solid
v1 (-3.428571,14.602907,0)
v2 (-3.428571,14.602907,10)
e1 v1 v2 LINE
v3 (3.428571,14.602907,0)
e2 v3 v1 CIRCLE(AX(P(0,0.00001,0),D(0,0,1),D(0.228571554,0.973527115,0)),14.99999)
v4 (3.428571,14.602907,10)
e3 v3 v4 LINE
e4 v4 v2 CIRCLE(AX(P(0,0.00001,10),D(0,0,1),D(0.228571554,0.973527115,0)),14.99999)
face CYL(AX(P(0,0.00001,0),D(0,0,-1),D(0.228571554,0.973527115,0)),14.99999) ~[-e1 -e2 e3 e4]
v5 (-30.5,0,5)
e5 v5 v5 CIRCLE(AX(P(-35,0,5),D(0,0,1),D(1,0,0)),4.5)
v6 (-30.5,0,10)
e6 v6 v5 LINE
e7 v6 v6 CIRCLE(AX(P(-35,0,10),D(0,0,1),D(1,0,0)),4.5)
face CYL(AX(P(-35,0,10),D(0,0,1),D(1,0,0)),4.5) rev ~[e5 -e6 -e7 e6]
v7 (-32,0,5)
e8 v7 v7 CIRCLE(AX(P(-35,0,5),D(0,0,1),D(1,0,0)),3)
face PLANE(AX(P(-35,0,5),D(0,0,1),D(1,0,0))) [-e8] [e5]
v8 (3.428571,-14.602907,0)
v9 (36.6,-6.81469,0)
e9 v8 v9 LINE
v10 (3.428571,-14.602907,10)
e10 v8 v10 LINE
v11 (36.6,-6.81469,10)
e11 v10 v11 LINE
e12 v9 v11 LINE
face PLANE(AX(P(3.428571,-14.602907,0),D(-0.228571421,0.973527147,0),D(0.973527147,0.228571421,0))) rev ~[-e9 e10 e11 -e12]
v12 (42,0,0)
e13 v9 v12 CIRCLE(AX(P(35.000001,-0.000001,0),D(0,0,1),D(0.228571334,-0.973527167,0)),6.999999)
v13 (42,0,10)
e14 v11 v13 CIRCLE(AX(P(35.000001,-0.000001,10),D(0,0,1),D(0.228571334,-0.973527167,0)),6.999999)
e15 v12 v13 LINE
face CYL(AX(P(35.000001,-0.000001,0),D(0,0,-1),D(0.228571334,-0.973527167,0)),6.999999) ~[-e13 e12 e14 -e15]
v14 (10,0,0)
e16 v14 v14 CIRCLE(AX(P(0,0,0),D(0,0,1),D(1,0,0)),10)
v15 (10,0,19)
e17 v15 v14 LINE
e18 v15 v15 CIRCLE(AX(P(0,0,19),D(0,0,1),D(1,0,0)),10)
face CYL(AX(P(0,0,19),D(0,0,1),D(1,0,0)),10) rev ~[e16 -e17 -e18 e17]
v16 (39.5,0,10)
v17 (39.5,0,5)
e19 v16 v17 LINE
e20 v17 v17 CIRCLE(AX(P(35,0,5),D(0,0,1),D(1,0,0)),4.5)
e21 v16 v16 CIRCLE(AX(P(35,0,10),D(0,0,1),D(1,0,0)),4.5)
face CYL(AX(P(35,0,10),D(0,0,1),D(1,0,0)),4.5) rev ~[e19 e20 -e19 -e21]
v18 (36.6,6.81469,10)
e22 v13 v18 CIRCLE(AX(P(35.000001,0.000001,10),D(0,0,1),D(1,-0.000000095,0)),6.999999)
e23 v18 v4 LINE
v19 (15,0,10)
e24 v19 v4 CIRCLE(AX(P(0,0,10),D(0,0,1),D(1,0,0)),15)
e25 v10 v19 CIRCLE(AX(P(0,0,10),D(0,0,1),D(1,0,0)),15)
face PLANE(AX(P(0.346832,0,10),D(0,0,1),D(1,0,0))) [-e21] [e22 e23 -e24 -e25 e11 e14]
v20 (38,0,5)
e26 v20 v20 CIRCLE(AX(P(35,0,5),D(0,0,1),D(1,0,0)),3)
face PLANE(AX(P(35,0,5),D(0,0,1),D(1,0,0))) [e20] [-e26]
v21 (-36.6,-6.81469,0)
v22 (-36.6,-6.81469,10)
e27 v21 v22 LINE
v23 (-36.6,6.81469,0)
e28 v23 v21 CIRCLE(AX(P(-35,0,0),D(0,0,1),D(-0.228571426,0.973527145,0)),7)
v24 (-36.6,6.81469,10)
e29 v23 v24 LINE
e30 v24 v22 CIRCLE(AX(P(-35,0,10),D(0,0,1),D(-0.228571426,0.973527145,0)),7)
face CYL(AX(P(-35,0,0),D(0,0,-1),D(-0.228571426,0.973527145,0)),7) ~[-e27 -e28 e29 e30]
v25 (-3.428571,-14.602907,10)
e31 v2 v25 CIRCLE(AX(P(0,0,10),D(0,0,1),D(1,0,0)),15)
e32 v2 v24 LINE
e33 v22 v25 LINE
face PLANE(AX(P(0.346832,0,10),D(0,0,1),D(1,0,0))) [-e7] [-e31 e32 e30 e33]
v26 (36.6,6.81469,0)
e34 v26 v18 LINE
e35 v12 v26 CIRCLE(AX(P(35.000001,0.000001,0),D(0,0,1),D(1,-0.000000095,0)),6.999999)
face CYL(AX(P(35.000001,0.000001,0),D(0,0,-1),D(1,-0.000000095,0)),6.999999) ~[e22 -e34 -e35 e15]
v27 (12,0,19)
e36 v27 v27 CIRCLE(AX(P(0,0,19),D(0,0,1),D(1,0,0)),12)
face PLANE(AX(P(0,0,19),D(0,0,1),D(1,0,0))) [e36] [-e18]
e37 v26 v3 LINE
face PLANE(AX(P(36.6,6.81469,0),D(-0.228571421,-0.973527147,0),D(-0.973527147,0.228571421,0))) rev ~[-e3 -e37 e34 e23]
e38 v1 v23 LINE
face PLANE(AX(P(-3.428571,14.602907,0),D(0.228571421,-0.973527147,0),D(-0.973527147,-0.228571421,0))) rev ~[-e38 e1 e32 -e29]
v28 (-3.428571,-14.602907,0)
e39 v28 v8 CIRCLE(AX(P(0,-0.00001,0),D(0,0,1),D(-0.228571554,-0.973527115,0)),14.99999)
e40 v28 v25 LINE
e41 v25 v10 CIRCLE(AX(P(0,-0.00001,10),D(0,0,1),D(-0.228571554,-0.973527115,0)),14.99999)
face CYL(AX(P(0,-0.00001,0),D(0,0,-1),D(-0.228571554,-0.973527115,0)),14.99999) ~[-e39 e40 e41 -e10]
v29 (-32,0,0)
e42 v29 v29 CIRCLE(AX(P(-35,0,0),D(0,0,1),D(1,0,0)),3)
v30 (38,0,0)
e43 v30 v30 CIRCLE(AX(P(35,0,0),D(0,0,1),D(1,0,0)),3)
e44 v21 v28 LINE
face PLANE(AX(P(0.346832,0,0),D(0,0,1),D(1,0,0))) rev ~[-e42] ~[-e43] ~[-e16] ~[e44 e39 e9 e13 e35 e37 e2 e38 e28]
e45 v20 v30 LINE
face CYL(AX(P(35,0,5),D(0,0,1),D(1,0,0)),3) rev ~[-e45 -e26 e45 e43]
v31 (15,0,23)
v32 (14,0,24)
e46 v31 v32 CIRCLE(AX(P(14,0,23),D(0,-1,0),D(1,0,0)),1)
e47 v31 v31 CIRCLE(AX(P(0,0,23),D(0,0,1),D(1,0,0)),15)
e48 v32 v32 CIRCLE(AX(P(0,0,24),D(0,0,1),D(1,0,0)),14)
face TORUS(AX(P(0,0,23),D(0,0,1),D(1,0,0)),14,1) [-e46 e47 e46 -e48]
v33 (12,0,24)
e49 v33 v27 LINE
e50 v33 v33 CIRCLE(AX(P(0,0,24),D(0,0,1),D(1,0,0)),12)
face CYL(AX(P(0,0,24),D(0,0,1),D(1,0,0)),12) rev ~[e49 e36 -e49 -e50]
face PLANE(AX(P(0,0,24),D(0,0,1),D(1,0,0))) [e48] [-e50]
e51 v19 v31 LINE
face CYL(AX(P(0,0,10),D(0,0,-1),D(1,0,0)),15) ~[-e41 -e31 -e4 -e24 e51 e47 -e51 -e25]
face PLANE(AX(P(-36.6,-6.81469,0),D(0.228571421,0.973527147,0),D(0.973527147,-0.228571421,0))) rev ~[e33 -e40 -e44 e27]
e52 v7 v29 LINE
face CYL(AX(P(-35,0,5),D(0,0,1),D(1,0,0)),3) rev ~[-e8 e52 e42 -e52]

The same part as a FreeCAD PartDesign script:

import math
import FreeCAD as App
import Part
import Sketcher
from FreeCAD import Vector


def edges_at(feature, points):
    """Names of the edges that pass closest to the given points."""
    edges = feature.Shape.Edges
    near = lambda p: min(range(len(edges)), key=lambda i: edges[i].distToShape(Part.Vertex(*p))[0])
    return sorted({f"Edge{near(p) + 1}" for p in points})

doc = App.newDocument("Part")
body = doc.addObject("PartDesign::Body", "Body")

sketch1 = body.newObject("Sketcher::SketchObject", "Sketch")
sketch1.AttachmentSupport = (doc.getObject("XY_Plane"), [""])
sketch1.MapMode = "FlatFace"
sketch1.addGeometry(Part.ArcOfCircle(Part.Circle(Vector(0, 0.00001, 0), Vector(0, 0, 1), 14.99999), math.radians(76.787012), math.radians(103.212988)), False)
sketch1.addGeometry(Part.LineSegment(Vector(-3.428571, 14.602907, 0), Vector(-36.6, 6.81469, 0)), False)
sketch1.addGeometry(Part.ArcOfCircle(Part.Circle(Vector(-35, 0, 0), Vector(0, 0, 1), 7), math.radians(103.21298), math.radians(256.78702)), False)
sketch1.addGeometry(Part.LineSegment(Vector(-36.6, -6.81469, 0), Vector(-3.428571, -14.602907, 0)), False)
sketch1.addGeometry(Part.ArcOfCircle(Part.Circle(Vector(0, -0.00001, 0), Vector(0, 0, 1), 14.99999), math.radians(-103.212988), math.radians(-76.787012)), False)
sketch1.addGeometry(Part.LineSegment(Vector(3.428571, -14.602907, 0), Vector(36.6, -6.81469, 0)), False)
sketch1.addGeometry(Part.ArcOfCircle(Part.Circle(Vector(35.000001, -0.000001, 0), Vector(0, 0, 1), 6.999999), math.radians(-76.787025), math.radians(0.000005)), False)
sketch1.addGeometry(Part.ArcOfCircle(Part.Circle(Vector(35.000001, 0.000001, 0), Vector(0, 0, 1), 6.999999), math.radians(-0.000005), math.radians(76.787025)), False)
sketch1.addGeometry(Part.LineSegment(Vector(36.6, 6.81469, 0), Vector(3.428571, 14.602907, 0)), False)
sketch1.addConstraint(Sketcher.Constraint("Tangent", 0, 2, 1, 1))
sketch1.addConstraint(Sketcher.Constraint("Tangent", 1, 2, 2, 1))
sketch1.addConstraint(Sketcher.Constraint("Tangent", 2, 2, 3, 1))
sketch1.addConstraint(Sketcher.Constraint("Tangent", 3, 2, 4, 1))
sketch1.addConstraint(Sketcher.Constraint("Tangent", 4, 2, 5, 1))
sketch1.addConstraint(Sketcher.Constraint("Tangent", 5, 2, 6, 1))
sketch1.addConstraint(Sketcher.Constraint("Tangent", 6, 2, 7, 1))
sketch1.addConstraint(Sketcher.Constraint("Tangent", 7, 2, 8, 1))
sketch1.addConstraint(Sketcher.Constraint("Tangent", 8, 2, 0, 1))
sketch1.addConstraint(Sketcher.Constraint("Equal", 0, 4))
sketch1.addConstraint(Sketcher.Constraint("Equal", 2, 6))
sketch1.addConstraint(Sketcher.Constraint("Equal", 6, 7))
sketch1.addConstraint(Sketcher.Constraint("Symmetric", 0, 3, 4, 3, -1, 1))
sketch1.addConstraint(Sketcher.Constraint("Symmetric", 2, 3, 6, 3, -1, 1))
sketch1.addConstraint(Sketcher.Constraint("Symmetric", 3, 2, 4, 2, -2))
sketch1.addConstraint(Sketcher.Constraint("PointOnObject", 6, 2, -1))
sketch1.addConstraint(Sketcher.Constraint("Radius", 2, 7.0))
sketch1.addConstraint(Sketcher.Constraint("DistanceX", 2, 3, -1, 1, 35.0))
sketch1.addConstraint(Sketcher.Constraint("DistanceX", 1, 2, -1, 1, 36.6))
sketch1.addConstraint(Sketcher.Constraint("Radius", 0, 14.99999))
pad1 = body.newObject("PartDesign::Pad", "Pad")
pad1.Profile = sketch1
pad1.Length = 10

sketch2 = body.newObject("Sketcher::SketchObject", "Sketch001")
sketch2.AttachmentSupport = (doc.getObject("XY_Plane"), [""])
sketch2.MapMode = "FlatFace"
sketch2.AttachmentOffset = App.Placement(Vector(0, 0, 10), App.Rotation())
sketch2.addGeometry(Part.Circle(Vector(0, 0, 0), Vector(0, 0, 1), 15), False)
sketch2.addConstraint(Sketcher.Constraint("Coincident", 0, 3, -1, 1))
sketch2.addConstraint(Sketcher.Constraint("Diameter", 0, 30.0))
pad2 = body.newObject("PartDesign::Pad", "Pad001")
pad2.Profile = sketch2
pad2.Length = 14
body2 = doc.addObject("PartDesign::Body", "Body001")
body2.AllowCompound = True

sketch3 = body2.newObject("Sketcher::SketchObject", "Sketch002")
sketch3.AttachmentSupport = (doc.getObject("XY_Plane001"), [""])
sketch3.MapMode = "FlatFace"
sketch3.AttachmentOffset = App.Placement(Vector(0, 0, 10), App.Rotation())
sketch3.addGeometry(Part.Circle(Vector(-35, 0, 0), Vector(0, 0, 1), 4.5), False)
sketch3.addGeometry(Part.Circle(Vector(35, 0, 0), Vector(0, 0, 1), 4.5), False)
sketch3.addConstraint(Sketcher.Constraint("Equal", 0, 1))
sketch3.addConstraint(Sketcher.Constraint("Symmetric", 0, 3, 1, 3, -1, 1))
sketch3.addConstraint(Sketcher.Constraint("PointOnObject", 0, 3, -1))
sketch3.addConstraint(Sketcher.Constraint("Diameter", 0, 9.0))
sketch3.addConstraint(Sketcher.Constraint("DistanceX", 0, 3, -1, 1, 35.0))
pad3 = body2.newObject("PartDesign::Pad", "Pad002")
pad3.Profile = sketch3
pad3.Length = 5
pad3.Reversed = True
doc.recompute()

boolean = body.newObject("PartDesign::Boolean", "Boolean")
boolean.Type = "Cut"
boolean.addObjects([body2])
body3 = doc.addObject("PartDesign::Body", "Body002")
body3.AllowCompound = True

sketch4 = body3.newObject("Sketcher::SketchObject", "Sketch003")
sketch4.AttachmentSupport = (doc.getObject("XY_Plane002"), [""])
sketch4.MapMode = "FlatFace"
sketch4.AttachmentOffset = App.Placement(Vector(0, 0, 5), App.Rotation())
sketch4.addGeometry(Part.Circle(Vector(-35, 0, 0), Vector(0, 0, 1), 3), False)
sketch4.addGeometry(Part.Circle(Vector(35, 0, 0), Vector(0, 0, 1), 3), False)
sketch4.addConstraint(Sketcher.Constraint("Equal", 0, 1))
sketch4.addConstraint(Sketcher.Constraint("Symmetric", 0, 3, 1, 3, -1, 1))
sketch4.addConstraint(Sketcher.Constraint("PointOnObject", 0, 3, -1))
sketch4.addConstraint(Sketcher.Constraint("Diameter", 0, 6.0))
sketch4.addConstraint(Sketcher.Constraint("DistanceX", 0, 3, -1, 1, 35.0))
pad4 = body3.newObject("PartDesign::Pad", "Pad003")
pad4.Profile = sketch4
pad4.Length = 27.2
pad4.Reversed = True
doc.recompute()

boolean2 = body.newObject("PartDesign::Boolean", "Boolean001")
boolean2.Type = "Cut"
boolean2.addObjects([body3])
body4 = doc.addObject("PartDesign::Body", "Body003")

sketch5 = body4.newObject("Sketcher::SketchObject", "Sketch004")
sketch5.AttachmentSupport = (doc.getObject("XY_Plane003"), [""])
sketch5.MapMode = "FlatFace"
sketch5.AttachmentOffset = App.Placement(Vector(0, 0, 24), App.Rotation())
sketch5.addGeometry(Part.Circle(Vector(0, 0, 0), Vector(0, 0, 1), 12), False)
sketch5.addConstraint(Sketcher.Constraint("Coincident", 0, 3, -1, 1))
sketch5.addConstraint(Sketcher.Constraint("Diameter", 0, 24.0))
pad5 = body4.newObject("PartDesign::Pad", "Pad004")
pad5.Profile = sketch5
pad5.Length = 5
pad5.Reversed = True
doc.recompute()

boolean3 = body.newObject("PartDesign::Boolean", "Boolean002")
boolean3.Type = "Cut"
boolean3.addObjects([body4])
body5 = doc.addObject("PartDesign::Body", "Body004")

sketch6 = body5.newObject("Sketcher::SketchObject", "Sketch005")
sketch6.AttachmentSupport = (doc.getObject("XY_Plane004"), [""])
sketch6.MapMode = "FlatFace"
sketch6.AttachmentOffset = App.Placement(Vector(0, 0, 19), App.Rotation())
sketch6.addGeometry(Part.Circle(Vector(0, 0, 0), Vector(0, 0, 1), 10), False)
sketch6.addConstraint(Sketcher.Constraint("Coincident", 0, 3, -1, 1))
sketch6.addConstraint(Sketcher.Constraint("Diameter", 0, 20.0))
pad6 = body5.newObject("PartDesign::Pad", "Pad005")
pad6.Profile = sketch6
pad6.Length = 25
pad6.Reversed = True
doc.recompute()

boolean4 = body.newObject("PartDesign::Boolean", "Boolean003")
boolean4.Type = "Cut"
boolean4.addObjects([body5])
doc.recompute()

fillet = body.newObject("PartDesign::Fillet", "Fillet")
fillet.Base = (boolean4, edges_at(boolean4, [(-15, 0, 24)]))
fillet.Radius = 1

doc.recompute()
